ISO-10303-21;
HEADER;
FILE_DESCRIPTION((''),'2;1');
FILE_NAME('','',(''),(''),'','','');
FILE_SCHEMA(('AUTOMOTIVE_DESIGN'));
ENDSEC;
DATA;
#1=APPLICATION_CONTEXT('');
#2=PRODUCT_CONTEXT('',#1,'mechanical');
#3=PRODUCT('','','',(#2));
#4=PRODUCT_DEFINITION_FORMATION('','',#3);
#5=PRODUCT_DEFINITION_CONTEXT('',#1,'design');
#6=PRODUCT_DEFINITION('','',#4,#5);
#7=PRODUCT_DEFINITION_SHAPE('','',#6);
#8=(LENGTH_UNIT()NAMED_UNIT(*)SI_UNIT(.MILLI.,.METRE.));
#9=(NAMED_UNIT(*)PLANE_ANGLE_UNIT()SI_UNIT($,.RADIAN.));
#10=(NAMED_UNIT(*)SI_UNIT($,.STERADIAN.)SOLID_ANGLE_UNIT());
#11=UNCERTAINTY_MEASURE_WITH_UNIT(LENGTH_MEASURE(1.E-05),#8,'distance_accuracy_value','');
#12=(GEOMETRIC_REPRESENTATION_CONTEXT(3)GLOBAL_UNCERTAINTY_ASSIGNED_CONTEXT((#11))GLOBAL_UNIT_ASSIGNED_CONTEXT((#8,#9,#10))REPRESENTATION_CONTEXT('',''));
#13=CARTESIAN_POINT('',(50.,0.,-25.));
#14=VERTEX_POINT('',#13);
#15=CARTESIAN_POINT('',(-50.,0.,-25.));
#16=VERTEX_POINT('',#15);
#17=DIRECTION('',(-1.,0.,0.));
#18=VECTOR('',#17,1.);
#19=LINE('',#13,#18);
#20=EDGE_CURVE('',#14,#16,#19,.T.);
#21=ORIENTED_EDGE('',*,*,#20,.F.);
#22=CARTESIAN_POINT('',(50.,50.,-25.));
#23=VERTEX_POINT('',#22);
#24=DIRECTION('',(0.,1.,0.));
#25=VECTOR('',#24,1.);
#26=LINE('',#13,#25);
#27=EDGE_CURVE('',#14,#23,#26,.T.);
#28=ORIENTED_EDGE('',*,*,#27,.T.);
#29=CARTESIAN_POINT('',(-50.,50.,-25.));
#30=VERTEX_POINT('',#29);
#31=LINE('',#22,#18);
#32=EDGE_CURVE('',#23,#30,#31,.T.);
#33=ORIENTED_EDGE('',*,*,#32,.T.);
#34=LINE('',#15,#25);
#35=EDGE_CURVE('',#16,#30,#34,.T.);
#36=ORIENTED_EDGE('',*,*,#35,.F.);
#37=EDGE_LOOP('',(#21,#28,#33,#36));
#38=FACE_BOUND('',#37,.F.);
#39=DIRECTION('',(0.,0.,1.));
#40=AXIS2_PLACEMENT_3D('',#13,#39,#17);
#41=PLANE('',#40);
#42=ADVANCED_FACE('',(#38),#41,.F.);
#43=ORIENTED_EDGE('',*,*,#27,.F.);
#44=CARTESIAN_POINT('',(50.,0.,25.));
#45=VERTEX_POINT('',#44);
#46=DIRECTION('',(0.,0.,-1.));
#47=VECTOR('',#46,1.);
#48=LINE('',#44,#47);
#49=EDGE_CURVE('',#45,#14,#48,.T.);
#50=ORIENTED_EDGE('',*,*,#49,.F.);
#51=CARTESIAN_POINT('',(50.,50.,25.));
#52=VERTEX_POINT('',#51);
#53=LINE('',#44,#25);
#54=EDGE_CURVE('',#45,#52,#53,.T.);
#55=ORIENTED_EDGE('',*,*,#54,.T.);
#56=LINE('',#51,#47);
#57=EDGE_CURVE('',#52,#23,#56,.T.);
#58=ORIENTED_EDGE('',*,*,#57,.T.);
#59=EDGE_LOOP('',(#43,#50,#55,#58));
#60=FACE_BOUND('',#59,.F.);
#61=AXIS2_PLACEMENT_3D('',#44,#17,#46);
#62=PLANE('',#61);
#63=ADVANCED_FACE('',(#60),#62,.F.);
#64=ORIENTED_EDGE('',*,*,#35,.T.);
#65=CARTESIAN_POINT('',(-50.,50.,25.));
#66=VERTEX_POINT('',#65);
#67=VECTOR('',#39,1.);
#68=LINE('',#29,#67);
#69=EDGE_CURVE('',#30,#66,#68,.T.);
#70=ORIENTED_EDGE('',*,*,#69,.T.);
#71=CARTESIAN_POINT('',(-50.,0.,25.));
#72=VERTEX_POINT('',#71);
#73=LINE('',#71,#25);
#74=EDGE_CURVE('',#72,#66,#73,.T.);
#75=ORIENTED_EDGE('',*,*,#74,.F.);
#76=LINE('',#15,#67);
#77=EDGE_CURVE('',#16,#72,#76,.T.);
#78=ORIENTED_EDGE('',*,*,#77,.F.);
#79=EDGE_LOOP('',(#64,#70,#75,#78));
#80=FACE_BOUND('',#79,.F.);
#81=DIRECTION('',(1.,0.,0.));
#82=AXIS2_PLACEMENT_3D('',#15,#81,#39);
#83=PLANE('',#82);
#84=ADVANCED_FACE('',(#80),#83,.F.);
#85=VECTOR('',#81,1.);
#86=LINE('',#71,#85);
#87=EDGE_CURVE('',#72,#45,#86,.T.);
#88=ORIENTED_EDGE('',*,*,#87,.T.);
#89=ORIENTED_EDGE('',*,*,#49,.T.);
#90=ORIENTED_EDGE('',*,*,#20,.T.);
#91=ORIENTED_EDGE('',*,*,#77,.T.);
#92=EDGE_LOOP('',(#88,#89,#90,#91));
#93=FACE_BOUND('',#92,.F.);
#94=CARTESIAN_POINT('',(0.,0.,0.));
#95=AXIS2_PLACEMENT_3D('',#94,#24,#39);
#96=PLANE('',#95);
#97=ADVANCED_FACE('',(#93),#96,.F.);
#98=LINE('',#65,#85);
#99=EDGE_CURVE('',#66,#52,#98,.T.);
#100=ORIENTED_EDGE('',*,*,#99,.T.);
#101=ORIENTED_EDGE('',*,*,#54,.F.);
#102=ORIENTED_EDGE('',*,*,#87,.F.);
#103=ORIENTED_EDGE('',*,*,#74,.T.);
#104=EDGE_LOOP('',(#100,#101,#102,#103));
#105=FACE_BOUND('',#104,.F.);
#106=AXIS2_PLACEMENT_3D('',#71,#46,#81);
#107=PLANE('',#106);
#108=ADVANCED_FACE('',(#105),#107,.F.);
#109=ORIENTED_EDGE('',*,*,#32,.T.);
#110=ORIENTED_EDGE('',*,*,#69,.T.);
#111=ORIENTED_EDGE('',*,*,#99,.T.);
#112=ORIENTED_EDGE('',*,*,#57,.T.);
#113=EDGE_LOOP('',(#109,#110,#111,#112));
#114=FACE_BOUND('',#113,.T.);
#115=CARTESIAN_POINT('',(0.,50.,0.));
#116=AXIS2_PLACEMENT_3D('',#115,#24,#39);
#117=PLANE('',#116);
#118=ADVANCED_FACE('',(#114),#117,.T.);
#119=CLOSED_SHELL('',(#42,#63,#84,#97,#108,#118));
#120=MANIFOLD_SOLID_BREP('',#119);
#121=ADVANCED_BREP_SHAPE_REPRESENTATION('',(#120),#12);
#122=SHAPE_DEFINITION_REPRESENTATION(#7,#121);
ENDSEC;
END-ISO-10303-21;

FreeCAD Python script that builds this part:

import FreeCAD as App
import Part
import Sketcher
from FreeCAD import Vector
Q = App.Units.Quantity

doc = App.newDocument("Part")
params = doc.addObject("Spreadsheet::Sheet", "Params")
for row, (alias, value) in enumerate([
    ("pad1_length", "1.9685039 in"),
], start=1):
    params.set(f"A{row}", alias)
    params.set(f"B{row}", "=" + value)
    params.setAlias(f"B{row}", alias)

body = doc.addObject("PartDesign::Body", "Body")

sketch1 = body.newObject("Sketcher::SketchObject", "Sketch")
sketch1.AttachmentSupport = (doc.getObject("XZ_Plane"), [""])
sketch1.MapMode = "FlatFace"
sketch1.addGeometry([
    Part.LineSegment(Vector(50, 25, 0), Vector(-50, 25, 0)),
    Part.LineSegment(Vector(-50, 25, 0), Vector(-50, -25, 0)),
    Part.LineSegment(Vector(-50, -25, 0), Vector(50, -25, 0)),
    Part.LineSegment(Vector(50, -25, 0), Vector(50, 25, 0)),
], False)
sketch1.addConstraint([
    Sketcher.Constraint("Coincident", 0, 2, 1, 1),
    Sketcher.Constraint("Coincident", 1, 2, 2, 1),
    Sketcher.Constraint("Coincident", 2, 2, 3, 1),
    Sketcher.Constraint("Coincident", 3, 2, 0, 1),
    Sketcher.Constraint("Horizontal", 0),
    Sketcher.Constraint("Vertical", 1),
    Sketcher.Constraint("Horizontal", 2),
    Sketcher.Constraint("Vertical", 3),
    Sketcher.Constraint("Symmetric", 0, 2, 2, 2, -1, 1),
    Sketcher.Constraint("DistanceY", 1, 2, 1, 1, Q("1.9685 in")),
    Sketcher.Constraint("DistanceX", 0, 2, -1, 1, Q("1.9685 in")),
])
pad1 = body.newObject("PartDesign::Pad", "Pad")
pad1.Profile = sketch1
pad1.setExpression("Length", "Params.pad1_length")
pad1.Reversed = True

doc.recompute()
